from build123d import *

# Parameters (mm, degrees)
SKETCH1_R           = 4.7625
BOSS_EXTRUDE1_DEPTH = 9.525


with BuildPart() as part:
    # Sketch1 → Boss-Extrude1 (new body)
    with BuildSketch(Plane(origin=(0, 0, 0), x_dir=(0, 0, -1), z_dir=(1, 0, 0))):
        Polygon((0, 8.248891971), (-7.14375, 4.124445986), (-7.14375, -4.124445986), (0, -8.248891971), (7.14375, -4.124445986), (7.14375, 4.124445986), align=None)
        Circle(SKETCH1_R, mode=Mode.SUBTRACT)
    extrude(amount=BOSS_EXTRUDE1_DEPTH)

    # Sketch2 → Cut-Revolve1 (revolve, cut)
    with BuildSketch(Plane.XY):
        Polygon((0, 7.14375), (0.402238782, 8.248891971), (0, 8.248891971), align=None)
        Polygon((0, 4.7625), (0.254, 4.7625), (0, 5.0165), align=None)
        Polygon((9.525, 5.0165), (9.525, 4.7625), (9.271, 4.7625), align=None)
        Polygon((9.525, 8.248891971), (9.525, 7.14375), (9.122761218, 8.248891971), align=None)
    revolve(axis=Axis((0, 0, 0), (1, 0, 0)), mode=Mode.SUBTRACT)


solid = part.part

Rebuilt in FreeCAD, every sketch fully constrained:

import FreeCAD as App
import Part
import Sketcher

V = App.Vector
Q = App.Units.Quantity

doc = App.newDocument("Part")
body = doc.addObject("PartDesign::Body", "Body")

# Sketch on YZ plane
sketch1 = body.newObject("Sketcher::SketchObject", "Sketch")
sketch1.AttachmentSupport = (doc.getObject("YZ_Plane"), [""])
sketch1.MapMode = "FlatFace"
sketch1.addGeometry([
    Part.LineSegment(V(8.2, 0, 0), V(4.1, 7.1, 0)),  # 0
    Part.LineSegment(V(4.1, 7.1, 0), V(-4.1, 7.1, 0)),  # 1
    Part.LineSegment(V(-4.1, 7.1, 0), V(-8.2, 0, 0)),  # 2
    Part.LineSegment(V(-8.2, 0, 0), V(-4.1, -7.1, 0)),  # 3
    Part.LineSegment(V(-4.1, -7.1, 0), V(4.1, -7.1, 0)),  # 4
    Part.LineSegment(V(4.1, -7.1, 0), V(8.2, 0, 0)),  # 5
    Part.Circle(V(0, 0, 0), V(0, 0, 1), 4.8),  # 6
], False)
sketch1.addConstraint([
    Sketcher.Constraint("Coincident", 0, 2, 1, 1),
    Sketcher.Constraint("Coincident", 1, 2, 2, 1),
    Sketcher.Constraint("Coincident", 2, 2, 3, 1),
    Sketcher.Constraint("Coincident", 3, 2, 4, 1),
    Sketcher.Constraint("Coincident", 4, 2, 5, 1),
    Sketcher.Constraint("Coincident", 5, 2, 0, 1),
    Sketcher.Constraint("Horizontal", 1),
    Sketcher.Constraint("Horizontal", 4),
    Sketcher.Constraint("Coincident", 6, 3, -1, 1),
    Sketcher.Constraint("Symmetric", 0, 2, 3, 2, -1, 1),
    Sketcher.Constraint("Symmetric", 2, 2, 5, 2, -1, 1),
    Sketcher.Constraint("PointOnObject", 2, 2, -1),
    Sketcher.Constraint("Parallel", 2, 5),
    Sketcher.Constraint("Vertical", 1, 2, 3, 2),
    Sketcher.Constraint("Diameter", 6, Q("0.375 in")),
    Sketcher.Constraint("Angle", 0, Q("120 deg")),
    Sketcher.Constraint("DistanceY", -1, 1, 0, 2, Q("0.28125 in")),
    Sketcher.Constraint("DistanceX", 1, 2, 1, 1, 8.248892),
])
pad1 = body.newObject("PartDesign::Pad", "Pad")
pad1.Profile = sketch1
pad1.Length = Q("0.375 in")

# Sketch on XY plane
sketch2 = body.newObject("Sketcher::SketchObject", "Sketch001")
sketch2.AttachmentSupport = (doc.getObject("XY_Plane"), [""])
sketch2.MapMode = "FlatFace"
sketch2.addGeometry([
    Part.LineSegment(V(0, 7.14, 0), V(0.4, 8.25, 0)),  # 0
    Part.LineSegment(V(0.4, 8.25, 0), V(0, 8.25, 0)),  # 1
    Part.LineSegment(V(0, 8.25, 0), V(0, 7.14, 0)),  # 2
    Part.LineSegment(V(0, 4.76, 0), V(0.25, 4.76, 0)),  # 3
    Part.LineSegment(V(0.25, 4.76, 0), V(0, 5.02, 0)),  # 4
    Part.LineSegment(V(0, 5.02, 0), V(0, 4.76, 0)),  # 5
    Part.LineSegment(V(9.53, 4.76, 0), V(9.53, 5.02, 0)),  # 6
    Part.LineSegment(V(9.53, 5.02, 0), V(9.27, 4.76, 0)),  # 7
    Part.LineSegment(V(9.27, 4.76, 0), V(9.53, 4.76, 0)),  # 8
    Part.LineSegment(V(9.53, 7.14, 0), V(9.53, 8.25, 0)),  # 9
    Part.LineSegment(V(9.53, 8.25, 0), V(9.12, 8.25, 0)),  # 10
    Part.LineSegment(V(9.12, 8.25, 0), V(9.53, 7.14, 0)),  # 11
], False)
sketch2.addConstraint([
    Sketcher.Constraint("Coincident", 0, 2, 1, 1),
    Sketcher.Constraint("Coincident", 1, 2, 2, 1),
    Sketcher.Constraint("Coincident", 2, 2, 0, 1),
    Sketcher.Constraint("Coincident", 3, 2, 4, 1),
    Sketcher.Constraint("Coincident", 4, 2, 5, 1),
    Sketcher.Constraint("Coincident", 5, 2, 3, 1),
    Sketcher.Constraint("Coincident", 6, 2, 7, 1),
    Sketcher.Constraint("Coincident", 7, 2, 8, 1),
    Sketcher.Constraint("Coincident", 8, 2, 6, 1),
    Sketcher.Constraint("Coincident", 9, 2, 10, 1),
    Sketcher.Constraint("Coincident", 10, 2, 11, 1),
    Sketcher.Constraint("Coincident", 11, 2, 9, 1),
    Sketcher.Constraint("Horizontal", 1),
    Sketcher.Constraint("Vertical", 2),
    Sketcher.Constraint("Horizontal", 3),
    Sketcher.Constraint("Vertical", 5),
    Sketcher.Constraint("Vertical", 6),
    Sketcher.Constraint("Horizontal", 8),
    Sketcher.Constraint("Vertical", 9),
    Sketcher.Constraint("Horizontal", 10),
    Sketcher.Constraint("PointOnObject", 1, 2, -2),
    Sketcher.Constraint("PointOnObject", 4, 2, -2),
    Sketcher.Constraint("Perpendicular", 4, 7),
    Sketcher.Constraint("Horizontal", 4, 2, 6, 2),
    Sketcher.Constraint("Horizontal", 5, 2, 7, 2),
    Sketcher.Constraint("Horizontal", 1, 2, 9, 2),
    Sketcher.Constraint("Horizontal", 2, 2, 11, 2),
    Sketcher.Constraint("Vertical", 8, 2, 9, 2),
    Sketcher.Constraint("Equal", 3, 8),
    Sketcher.Constraint("Equal", 1, 10),
    Sketcher.Constraint("Angle", 0, Q("70 deg")),
    Sketcher.Constraint("DistanceX", 3, 1, 3, 2, Q("0.01 in")),
    Sketcher.Constraint("DistanceY", -1, 1, 2, 2, Q("0.28125 in")),
    Sketcher.Constraint("DistanceY", -1, 1, 3, 2, Q("0.1875 in")),
    Sketcher.Constraint("DistanceX", -1, 1, 6, 2, Q("0.375 in")),
    Sketcher.Constraint("DistanceX", 1, 2, 1, 1, 0.402239),
])
groove = body.newObject("PartDesign::Groove", "Groove")
groove.Profile = sketch2
groove.ReferenceAxis = (sketch2, ["H_Axis"])
groove.Angle = 360

doc.recompute()
